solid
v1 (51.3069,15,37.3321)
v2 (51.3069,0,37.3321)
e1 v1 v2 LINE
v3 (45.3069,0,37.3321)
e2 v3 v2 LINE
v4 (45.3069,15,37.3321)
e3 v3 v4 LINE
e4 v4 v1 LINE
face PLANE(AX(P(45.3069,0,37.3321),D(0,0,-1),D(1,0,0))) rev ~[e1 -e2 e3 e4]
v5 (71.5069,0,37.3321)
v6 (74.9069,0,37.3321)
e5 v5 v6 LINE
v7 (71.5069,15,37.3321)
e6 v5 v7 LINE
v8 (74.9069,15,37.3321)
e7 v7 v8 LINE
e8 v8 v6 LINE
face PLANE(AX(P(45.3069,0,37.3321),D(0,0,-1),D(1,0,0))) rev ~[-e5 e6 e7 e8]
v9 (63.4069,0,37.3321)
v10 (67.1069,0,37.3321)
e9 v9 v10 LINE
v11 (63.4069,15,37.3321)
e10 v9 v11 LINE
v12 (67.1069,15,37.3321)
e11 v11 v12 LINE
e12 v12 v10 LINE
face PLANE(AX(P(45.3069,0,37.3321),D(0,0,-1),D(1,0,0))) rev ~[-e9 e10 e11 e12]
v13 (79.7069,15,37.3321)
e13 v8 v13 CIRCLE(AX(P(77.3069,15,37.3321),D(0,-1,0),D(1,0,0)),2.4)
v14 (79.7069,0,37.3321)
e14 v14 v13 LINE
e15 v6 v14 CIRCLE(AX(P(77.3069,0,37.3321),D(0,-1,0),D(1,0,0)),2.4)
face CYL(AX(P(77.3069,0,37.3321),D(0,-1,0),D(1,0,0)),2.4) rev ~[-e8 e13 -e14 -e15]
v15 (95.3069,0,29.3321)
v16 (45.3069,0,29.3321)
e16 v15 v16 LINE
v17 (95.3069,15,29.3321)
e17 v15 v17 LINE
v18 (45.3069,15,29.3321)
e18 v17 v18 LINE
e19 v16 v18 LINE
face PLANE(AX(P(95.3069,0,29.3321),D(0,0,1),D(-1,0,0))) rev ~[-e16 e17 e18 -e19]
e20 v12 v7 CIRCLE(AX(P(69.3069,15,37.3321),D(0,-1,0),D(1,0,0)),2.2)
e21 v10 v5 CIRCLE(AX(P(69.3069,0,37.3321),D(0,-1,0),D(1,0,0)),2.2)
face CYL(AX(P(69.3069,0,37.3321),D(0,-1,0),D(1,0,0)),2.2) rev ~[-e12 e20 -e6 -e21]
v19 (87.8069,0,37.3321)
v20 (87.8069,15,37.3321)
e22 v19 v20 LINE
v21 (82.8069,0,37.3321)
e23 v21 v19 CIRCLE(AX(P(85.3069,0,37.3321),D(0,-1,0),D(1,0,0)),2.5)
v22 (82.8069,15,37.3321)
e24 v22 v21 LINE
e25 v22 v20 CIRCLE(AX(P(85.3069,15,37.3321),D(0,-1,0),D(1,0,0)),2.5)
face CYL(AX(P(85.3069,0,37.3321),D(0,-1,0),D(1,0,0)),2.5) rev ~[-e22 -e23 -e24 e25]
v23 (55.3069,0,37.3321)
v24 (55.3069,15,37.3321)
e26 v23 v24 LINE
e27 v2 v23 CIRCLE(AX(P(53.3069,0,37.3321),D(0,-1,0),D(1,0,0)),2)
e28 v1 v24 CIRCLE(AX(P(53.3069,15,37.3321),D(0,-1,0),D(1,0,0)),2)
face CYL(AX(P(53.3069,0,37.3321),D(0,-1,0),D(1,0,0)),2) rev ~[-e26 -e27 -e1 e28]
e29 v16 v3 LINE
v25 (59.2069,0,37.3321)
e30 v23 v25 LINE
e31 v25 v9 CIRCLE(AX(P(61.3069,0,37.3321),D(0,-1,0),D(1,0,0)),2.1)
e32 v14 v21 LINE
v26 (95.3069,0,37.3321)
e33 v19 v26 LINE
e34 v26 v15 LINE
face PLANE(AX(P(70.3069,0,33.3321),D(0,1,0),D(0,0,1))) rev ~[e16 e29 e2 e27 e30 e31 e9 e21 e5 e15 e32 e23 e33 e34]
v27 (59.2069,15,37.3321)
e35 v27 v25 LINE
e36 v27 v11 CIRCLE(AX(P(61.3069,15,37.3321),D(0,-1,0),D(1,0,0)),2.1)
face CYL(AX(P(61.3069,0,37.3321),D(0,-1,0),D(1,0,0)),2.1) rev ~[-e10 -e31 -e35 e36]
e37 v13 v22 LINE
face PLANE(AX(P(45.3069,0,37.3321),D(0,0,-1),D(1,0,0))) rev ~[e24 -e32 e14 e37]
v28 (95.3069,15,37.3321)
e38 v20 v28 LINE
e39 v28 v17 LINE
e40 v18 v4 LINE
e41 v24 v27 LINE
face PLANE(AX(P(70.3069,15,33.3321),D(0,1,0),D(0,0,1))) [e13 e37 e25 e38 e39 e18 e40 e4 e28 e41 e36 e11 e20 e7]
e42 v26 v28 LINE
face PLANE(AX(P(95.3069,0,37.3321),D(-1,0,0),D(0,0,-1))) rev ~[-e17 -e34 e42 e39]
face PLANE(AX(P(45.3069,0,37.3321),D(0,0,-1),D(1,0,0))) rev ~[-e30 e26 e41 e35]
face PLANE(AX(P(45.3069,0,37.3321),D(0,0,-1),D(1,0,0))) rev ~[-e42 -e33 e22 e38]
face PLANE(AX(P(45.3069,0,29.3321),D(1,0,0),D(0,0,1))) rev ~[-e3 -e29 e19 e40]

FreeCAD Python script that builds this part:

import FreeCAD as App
import Part
import Sketcher

V = App.Vector
Q = App.Units.Quantity

doc = App.newDocument("Part")
body = doc.addObject("PartDesign::Body", "Body")

sketch1 = body.newObject("Sketcher::SketchObject", "Sketch")
sketch1.AttachmentSupport = (doc.getObject("XZ_Plane"), [""])
sketch1.MapMode = "FlatFace"
sketch1.addGeometry(Part.LineSegment(V(95, 37, 0), V(45, 37, 0)), False)
sketch1.addGeometry(Part.LineSegment(V(45, 37, 0), V(45, 29, 0)), False)
sketch1.addGeometry(Part.LineSegment(V(45, 29, 0), V(95, 29, 0)), False)
sketch1.addGeometry(Part.LineSegment(V(95, 29, 0), V(95, 37, 0)), False)
sketch1.addConstraint(Sketcher.Constraint("Coincident", 0, 2, 1, 1))
sketch1.addConstraint(Sketcher.Constraint("Coincident", 1, 2, 2, 1))
sketch1.addConstraint(Sketcher.Constraint("Coincident", 2, 2, 3, 1))
sketch1.addConstraint(Sketcher.Constraint("Coincident", 3, 2, 0, 1))
sketch1.addConstraint(Sketcher.Constraint("Horizontal", 0))
sketch1.addConstraint(Sketcher.Constraint("Vertical", 1))
sketch1.addConstraint(Sketcher.Constraint("Horizontal", 2))
sketch1.addConstraint(Sketcher.Constraint("Vertical", 3))
sketch1.addConstraint(Sketcher.Constraint("DistanceX", 0, 2, 0, 1, Q("50 mm")))
sketch1.addConstraint(Sketcher.Constraint("DistanceY", 1, 2, 1, 1, Q("8 mm")))
sketch1.addConstraint(Sketcher.Constraint("DistanceX", -1, 1, 0, 2, Q("45.307 mm")))
sketch1.addConstraint(Sketcher.Constraint("DistanceY", -1, 1, 0, 2, Q("37.332 mm")))
pad1 = body.newObject("PartDesign::Pad", "Pad")
pad1.Profile = sketch1
pad1.Length = 15
pad1.Reversed = True

sketch2 = body.newObject("Sketcher::SketchObject", "Sketch001")
sketch2.AttachmentSupport = (doc.getObject("XZ_Plane"), [""])
sketch2.MapMode = "FlatFace"
sketch2.addGeometry(Part.Circle(V(53.3, 37.3, 0), V(0, 0, 1), 2), False)
sketch2.addGeometry(Part.Circle(V(61.3, 37.3, 0), V(0, 0, 1), 2.1), False)
sketch2.addGeometry(Part.Circle(V(69.3, 37.3, 0), V(0, 0, 1), 2.2), False)
sketch2.addGeometry(Part.Circle(V(77.3, 37.3, 0), V(0, 0, 1), 2.4), False)
sketch2.addGeometry(Part.Circle(V(85.3, 37.3, 0), V(0, 0, 1), 2.5), False)
sketch2.addConstraint(Sketcher.Constraint("Horizontal", 0, 3, 1, 3))
sketch2.addConstraint(Sketcher.Constraint("Horizontal", 1, 3, 2, 3))
sketch2.addConstraint(Sketcher.Constraint("Horizontal", 2, 3, 3, 3))
sketch2.addConstraint(Sketcher.Constraint("Horizontal", 3, 3, 4, 3))
sketch2.addConstraint(Sketcher.Constraint("Diameter", 0, Q("4 mm")))
sketch2.addConstraint(Sketcher.Constraint("Diameter", 4, Q("5 mm")))
sketch2.addConstraint(Sketcher.Constraint("Diameter", 1, Q("4.2 mm")))
sketch2.addConstraint(Sketcher.Constraint("Diameter", 2, Q("4.4 mm")))
sketch2.addConstraint(Sketcher.Constraint("Diameter", 3, Q("4.8 mm")))
sketch2.addConstraint(Sketcher.Constraint("DistanceX", 0, 3, 1, 3, Q("8 mm")))
sketch2.addConstraint(Sketcher.Constraint("DistanceX", 1, 3, 2, 3, Q("8 mm")))
sketch2.addConstraint(Sketcher.Constraint("DistanceX", 2, 3, 3, 3, Q("8 mm")))
sketch2.addConstraint(Sketcher.Constraint("DistanceX", 3, 3, 4, 3, Q("8 mm")))
sketch2.addConstraint(Sketcher.Constraint("DistanceX", -1, 1, 0, 3, Q("53.307 mm")))
sketch2.addConstraint(Sketcher.Constraint("DistanceY", -1, 1, 0, 3, Q("37.332 mm")))
pocket1 = body.newObject("PartDesign::Pocket", "Pocket")
pocket1.Profile = sketch2
pocket1.Type = "UpToFirst"

doc.recompute()
